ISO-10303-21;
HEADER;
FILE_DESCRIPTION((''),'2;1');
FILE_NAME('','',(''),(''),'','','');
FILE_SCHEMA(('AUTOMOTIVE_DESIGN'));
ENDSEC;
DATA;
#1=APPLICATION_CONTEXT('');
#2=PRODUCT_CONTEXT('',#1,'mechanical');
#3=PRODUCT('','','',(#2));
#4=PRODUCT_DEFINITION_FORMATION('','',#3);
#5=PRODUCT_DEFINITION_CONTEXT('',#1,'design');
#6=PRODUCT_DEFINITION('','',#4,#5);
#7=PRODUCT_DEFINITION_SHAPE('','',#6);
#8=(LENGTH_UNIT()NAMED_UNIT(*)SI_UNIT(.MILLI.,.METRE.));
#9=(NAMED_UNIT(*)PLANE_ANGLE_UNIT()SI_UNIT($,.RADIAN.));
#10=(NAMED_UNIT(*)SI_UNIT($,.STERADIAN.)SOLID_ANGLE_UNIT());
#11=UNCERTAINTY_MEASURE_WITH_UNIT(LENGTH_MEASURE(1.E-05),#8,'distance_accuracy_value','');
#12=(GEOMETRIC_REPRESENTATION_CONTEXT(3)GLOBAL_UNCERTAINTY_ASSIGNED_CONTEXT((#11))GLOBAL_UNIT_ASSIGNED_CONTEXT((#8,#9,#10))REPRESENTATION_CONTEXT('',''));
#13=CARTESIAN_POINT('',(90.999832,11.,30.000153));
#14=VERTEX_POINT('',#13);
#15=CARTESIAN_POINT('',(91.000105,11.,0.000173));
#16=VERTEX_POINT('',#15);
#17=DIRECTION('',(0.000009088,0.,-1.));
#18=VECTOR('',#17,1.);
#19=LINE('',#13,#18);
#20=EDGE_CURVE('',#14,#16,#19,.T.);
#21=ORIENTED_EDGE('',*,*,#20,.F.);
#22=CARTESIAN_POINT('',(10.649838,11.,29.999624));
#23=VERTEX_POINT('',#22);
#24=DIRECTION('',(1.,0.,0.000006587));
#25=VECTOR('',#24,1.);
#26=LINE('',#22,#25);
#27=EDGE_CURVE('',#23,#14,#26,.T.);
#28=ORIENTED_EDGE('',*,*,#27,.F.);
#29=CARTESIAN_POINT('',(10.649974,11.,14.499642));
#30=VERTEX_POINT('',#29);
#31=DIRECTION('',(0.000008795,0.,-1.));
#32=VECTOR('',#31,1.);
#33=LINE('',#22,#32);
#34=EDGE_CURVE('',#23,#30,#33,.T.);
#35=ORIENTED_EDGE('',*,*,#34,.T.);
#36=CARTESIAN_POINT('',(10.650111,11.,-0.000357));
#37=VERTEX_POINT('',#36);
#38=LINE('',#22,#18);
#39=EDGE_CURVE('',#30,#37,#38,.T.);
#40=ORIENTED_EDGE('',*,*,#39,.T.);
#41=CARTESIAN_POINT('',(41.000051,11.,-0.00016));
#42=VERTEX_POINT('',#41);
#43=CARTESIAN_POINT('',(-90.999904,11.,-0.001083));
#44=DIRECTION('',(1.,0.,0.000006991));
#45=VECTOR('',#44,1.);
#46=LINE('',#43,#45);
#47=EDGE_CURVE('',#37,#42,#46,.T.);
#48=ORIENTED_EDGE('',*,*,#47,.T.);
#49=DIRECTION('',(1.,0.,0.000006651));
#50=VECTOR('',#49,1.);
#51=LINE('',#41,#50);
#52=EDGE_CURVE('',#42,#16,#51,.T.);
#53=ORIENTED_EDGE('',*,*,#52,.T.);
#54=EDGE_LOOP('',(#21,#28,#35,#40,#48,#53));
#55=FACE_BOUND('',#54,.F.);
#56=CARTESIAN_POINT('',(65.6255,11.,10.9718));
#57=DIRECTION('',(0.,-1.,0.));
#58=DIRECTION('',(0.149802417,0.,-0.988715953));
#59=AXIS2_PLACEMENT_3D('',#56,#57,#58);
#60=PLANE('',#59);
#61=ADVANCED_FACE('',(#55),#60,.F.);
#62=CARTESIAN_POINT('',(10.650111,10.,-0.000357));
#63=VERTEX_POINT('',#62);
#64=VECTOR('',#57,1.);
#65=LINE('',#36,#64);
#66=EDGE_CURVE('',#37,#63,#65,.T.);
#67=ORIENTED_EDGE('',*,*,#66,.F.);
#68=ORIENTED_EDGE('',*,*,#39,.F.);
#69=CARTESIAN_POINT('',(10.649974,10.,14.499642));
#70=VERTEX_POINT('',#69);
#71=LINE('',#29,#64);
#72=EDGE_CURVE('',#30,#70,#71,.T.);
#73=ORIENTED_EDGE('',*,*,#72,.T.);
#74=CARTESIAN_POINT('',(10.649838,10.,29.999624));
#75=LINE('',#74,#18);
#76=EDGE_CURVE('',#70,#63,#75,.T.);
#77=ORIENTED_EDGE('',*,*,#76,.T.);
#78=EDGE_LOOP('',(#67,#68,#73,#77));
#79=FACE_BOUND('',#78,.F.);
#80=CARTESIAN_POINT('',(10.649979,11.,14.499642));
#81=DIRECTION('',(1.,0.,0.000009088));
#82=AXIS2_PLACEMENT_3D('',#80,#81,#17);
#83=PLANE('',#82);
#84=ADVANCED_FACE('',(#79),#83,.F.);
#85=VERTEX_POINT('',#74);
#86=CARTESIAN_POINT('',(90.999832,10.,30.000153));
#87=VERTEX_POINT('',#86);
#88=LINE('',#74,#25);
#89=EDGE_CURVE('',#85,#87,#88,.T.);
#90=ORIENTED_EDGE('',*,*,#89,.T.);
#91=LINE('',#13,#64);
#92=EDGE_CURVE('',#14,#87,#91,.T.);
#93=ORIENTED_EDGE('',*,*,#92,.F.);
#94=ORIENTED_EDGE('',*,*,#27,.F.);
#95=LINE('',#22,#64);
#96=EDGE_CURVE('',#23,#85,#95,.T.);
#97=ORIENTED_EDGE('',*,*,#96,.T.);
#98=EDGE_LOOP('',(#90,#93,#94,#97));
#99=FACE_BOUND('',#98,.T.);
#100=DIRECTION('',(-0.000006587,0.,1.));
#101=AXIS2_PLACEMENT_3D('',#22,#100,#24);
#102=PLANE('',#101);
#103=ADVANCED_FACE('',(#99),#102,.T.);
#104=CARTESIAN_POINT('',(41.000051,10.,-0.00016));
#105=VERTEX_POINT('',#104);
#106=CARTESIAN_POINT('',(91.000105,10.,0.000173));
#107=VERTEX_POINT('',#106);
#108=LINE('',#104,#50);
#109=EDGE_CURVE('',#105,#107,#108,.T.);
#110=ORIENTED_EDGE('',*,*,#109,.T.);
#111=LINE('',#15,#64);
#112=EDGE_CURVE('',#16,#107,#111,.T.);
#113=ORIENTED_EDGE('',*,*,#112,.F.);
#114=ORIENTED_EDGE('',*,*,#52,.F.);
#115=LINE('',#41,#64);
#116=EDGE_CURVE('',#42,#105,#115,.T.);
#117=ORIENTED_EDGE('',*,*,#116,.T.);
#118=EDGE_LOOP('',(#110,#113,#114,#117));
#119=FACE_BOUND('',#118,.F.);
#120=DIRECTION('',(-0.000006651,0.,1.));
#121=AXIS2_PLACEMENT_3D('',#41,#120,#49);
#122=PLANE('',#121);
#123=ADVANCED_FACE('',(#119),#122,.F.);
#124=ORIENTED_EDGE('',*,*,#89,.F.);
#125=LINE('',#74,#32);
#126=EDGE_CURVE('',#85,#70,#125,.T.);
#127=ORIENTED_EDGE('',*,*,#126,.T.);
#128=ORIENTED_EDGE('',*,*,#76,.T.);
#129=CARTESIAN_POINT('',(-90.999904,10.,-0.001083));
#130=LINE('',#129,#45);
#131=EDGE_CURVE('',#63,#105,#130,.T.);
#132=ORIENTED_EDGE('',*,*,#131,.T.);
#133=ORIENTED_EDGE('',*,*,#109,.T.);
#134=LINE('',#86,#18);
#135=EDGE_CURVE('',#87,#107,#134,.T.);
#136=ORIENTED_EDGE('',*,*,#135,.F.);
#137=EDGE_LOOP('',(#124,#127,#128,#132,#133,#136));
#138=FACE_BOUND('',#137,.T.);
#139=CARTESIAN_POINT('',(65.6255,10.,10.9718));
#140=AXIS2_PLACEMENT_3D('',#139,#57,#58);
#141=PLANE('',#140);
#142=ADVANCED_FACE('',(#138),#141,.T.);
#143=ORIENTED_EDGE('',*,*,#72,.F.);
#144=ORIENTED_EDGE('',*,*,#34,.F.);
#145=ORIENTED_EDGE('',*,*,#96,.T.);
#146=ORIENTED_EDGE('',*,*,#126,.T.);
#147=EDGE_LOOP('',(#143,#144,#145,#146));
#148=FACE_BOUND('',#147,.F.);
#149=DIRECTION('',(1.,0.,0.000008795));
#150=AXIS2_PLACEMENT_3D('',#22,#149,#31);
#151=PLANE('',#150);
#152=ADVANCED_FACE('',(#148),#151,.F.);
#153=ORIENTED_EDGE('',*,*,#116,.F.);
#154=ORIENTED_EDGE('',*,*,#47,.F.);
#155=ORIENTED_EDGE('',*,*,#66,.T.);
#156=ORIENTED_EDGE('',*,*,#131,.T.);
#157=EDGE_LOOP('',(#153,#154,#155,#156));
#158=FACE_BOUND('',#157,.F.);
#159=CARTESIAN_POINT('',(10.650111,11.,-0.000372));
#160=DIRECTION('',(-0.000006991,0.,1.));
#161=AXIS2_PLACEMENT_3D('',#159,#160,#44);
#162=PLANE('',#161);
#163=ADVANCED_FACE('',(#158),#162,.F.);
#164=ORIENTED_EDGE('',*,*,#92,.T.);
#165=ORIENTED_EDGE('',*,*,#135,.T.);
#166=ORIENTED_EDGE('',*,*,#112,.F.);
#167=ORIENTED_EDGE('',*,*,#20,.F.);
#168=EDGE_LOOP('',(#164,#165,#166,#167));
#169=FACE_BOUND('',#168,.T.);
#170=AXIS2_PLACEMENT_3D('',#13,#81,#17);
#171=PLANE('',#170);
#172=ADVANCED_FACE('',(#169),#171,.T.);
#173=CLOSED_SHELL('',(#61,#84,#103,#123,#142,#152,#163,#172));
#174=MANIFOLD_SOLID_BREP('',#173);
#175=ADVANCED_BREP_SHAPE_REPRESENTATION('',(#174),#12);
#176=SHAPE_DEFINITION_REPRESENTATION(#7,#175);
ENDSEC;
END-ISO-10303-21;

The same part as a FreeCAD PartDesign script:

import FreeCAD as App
import Part
import Sketcher
from FreeCAD import Vector


def add_polygon(sketch, points):
    """Adds a closed chain of lines whose ends are joined by coincident constraints."""
    first, n = sketch.GeometryCount, len(points)
    for a, b in zip(points, points[1:] + points[:1]):
        sketch.addGeometry(Part.LineSegment(App.Vector(*a, 0), App.Vector(*b, 0)), False)
    for i in range(n):
        sketch.addConstraint(Sketcher.Constraint("Coincident", first + i, 2, first + (i + 1) % n, 1))

doc = App.newDocument("Part")
params = doc.addObject("Spreadsheet::Sheet", "Params")
for row, (alias, value) in enumerate([
    ("sketch1_length", "50 mm"),
    ("sketch1_length2", "30 mm"),
    ("sketch1_height", "15.5 mm"),
    ("sketch1_length3", "30.35 mm"),
    ("pad1_length", "1 mm"),
], start=1):
    params.set(f"A{row}", alias)
    params.set(f"B{row}", "=" + value)
    params.setAlias(f"B{row}", alias)

body = doc.addObject("PartDesign::Body", "Body")

# Sketch on XZ plane
sketch1 = body.newObject("Sketcher::SketchObject", "Sketch")
sketch1.AttachmentSupport = (doc.getObject("XZ_Plane"), [""])
sketch1.MapMode = "FlatFace"
sketch1.AttachmentOffset = App.Placement(Vector(0, 0, -11), App.Rotation())
add_polygon(sketch1, [(11, 0), (41, 0), (91, 0), (91, 30), (11, 30), (11, 14)])  # lines 0-5
sketch1.addConstraint([
    Sketcher.Constraint("Vertical", 4),
    Sketcher.Constraint("Vertical", 5),
    Sketcher.Constraint("PointOnObject", 0, 2, -1),
    Sketcher.Constraint("PointOnObject", 1, 2, -1),
    Sketcher.Constraint("Parallel", 0, 1),
    Sketcher.Constraint("Perpendicular", 1, 2),
    Sketcher.Constraint("Perpendicular", 2, 3),
    Sketcher.Constraint("Distance", 1, 50.0),
    Sketcher.Constraint("Distance", 2, 30.0),
    Sketcher.Constraint("DistanceY", 4, 2, 4, 1, 15.5),
    Sketcher.Constraint("DistanceX", -1, 1, 0, 2, 41.0),
    Sketcher.Constraint("Distance", 0, 30.35),
])
sketch1.setExpression("Constraints[13]", "Params.sketch1_length")
sketch1.setExpression("Constraints[14]", "Params.sketch1_length2")
sketch1.setExpression("Constraints[15]", "Params.sketch1_height")
sketch1.setExpression("Constraints[17]", "Params.sketch1_length3")
pad1 = body.newObject("PartDesign::Pad", "Pad")
pad1.Profile = sketch1
pad1.setExpression("Length", "Params.pad1_length")

doc.recompute()
